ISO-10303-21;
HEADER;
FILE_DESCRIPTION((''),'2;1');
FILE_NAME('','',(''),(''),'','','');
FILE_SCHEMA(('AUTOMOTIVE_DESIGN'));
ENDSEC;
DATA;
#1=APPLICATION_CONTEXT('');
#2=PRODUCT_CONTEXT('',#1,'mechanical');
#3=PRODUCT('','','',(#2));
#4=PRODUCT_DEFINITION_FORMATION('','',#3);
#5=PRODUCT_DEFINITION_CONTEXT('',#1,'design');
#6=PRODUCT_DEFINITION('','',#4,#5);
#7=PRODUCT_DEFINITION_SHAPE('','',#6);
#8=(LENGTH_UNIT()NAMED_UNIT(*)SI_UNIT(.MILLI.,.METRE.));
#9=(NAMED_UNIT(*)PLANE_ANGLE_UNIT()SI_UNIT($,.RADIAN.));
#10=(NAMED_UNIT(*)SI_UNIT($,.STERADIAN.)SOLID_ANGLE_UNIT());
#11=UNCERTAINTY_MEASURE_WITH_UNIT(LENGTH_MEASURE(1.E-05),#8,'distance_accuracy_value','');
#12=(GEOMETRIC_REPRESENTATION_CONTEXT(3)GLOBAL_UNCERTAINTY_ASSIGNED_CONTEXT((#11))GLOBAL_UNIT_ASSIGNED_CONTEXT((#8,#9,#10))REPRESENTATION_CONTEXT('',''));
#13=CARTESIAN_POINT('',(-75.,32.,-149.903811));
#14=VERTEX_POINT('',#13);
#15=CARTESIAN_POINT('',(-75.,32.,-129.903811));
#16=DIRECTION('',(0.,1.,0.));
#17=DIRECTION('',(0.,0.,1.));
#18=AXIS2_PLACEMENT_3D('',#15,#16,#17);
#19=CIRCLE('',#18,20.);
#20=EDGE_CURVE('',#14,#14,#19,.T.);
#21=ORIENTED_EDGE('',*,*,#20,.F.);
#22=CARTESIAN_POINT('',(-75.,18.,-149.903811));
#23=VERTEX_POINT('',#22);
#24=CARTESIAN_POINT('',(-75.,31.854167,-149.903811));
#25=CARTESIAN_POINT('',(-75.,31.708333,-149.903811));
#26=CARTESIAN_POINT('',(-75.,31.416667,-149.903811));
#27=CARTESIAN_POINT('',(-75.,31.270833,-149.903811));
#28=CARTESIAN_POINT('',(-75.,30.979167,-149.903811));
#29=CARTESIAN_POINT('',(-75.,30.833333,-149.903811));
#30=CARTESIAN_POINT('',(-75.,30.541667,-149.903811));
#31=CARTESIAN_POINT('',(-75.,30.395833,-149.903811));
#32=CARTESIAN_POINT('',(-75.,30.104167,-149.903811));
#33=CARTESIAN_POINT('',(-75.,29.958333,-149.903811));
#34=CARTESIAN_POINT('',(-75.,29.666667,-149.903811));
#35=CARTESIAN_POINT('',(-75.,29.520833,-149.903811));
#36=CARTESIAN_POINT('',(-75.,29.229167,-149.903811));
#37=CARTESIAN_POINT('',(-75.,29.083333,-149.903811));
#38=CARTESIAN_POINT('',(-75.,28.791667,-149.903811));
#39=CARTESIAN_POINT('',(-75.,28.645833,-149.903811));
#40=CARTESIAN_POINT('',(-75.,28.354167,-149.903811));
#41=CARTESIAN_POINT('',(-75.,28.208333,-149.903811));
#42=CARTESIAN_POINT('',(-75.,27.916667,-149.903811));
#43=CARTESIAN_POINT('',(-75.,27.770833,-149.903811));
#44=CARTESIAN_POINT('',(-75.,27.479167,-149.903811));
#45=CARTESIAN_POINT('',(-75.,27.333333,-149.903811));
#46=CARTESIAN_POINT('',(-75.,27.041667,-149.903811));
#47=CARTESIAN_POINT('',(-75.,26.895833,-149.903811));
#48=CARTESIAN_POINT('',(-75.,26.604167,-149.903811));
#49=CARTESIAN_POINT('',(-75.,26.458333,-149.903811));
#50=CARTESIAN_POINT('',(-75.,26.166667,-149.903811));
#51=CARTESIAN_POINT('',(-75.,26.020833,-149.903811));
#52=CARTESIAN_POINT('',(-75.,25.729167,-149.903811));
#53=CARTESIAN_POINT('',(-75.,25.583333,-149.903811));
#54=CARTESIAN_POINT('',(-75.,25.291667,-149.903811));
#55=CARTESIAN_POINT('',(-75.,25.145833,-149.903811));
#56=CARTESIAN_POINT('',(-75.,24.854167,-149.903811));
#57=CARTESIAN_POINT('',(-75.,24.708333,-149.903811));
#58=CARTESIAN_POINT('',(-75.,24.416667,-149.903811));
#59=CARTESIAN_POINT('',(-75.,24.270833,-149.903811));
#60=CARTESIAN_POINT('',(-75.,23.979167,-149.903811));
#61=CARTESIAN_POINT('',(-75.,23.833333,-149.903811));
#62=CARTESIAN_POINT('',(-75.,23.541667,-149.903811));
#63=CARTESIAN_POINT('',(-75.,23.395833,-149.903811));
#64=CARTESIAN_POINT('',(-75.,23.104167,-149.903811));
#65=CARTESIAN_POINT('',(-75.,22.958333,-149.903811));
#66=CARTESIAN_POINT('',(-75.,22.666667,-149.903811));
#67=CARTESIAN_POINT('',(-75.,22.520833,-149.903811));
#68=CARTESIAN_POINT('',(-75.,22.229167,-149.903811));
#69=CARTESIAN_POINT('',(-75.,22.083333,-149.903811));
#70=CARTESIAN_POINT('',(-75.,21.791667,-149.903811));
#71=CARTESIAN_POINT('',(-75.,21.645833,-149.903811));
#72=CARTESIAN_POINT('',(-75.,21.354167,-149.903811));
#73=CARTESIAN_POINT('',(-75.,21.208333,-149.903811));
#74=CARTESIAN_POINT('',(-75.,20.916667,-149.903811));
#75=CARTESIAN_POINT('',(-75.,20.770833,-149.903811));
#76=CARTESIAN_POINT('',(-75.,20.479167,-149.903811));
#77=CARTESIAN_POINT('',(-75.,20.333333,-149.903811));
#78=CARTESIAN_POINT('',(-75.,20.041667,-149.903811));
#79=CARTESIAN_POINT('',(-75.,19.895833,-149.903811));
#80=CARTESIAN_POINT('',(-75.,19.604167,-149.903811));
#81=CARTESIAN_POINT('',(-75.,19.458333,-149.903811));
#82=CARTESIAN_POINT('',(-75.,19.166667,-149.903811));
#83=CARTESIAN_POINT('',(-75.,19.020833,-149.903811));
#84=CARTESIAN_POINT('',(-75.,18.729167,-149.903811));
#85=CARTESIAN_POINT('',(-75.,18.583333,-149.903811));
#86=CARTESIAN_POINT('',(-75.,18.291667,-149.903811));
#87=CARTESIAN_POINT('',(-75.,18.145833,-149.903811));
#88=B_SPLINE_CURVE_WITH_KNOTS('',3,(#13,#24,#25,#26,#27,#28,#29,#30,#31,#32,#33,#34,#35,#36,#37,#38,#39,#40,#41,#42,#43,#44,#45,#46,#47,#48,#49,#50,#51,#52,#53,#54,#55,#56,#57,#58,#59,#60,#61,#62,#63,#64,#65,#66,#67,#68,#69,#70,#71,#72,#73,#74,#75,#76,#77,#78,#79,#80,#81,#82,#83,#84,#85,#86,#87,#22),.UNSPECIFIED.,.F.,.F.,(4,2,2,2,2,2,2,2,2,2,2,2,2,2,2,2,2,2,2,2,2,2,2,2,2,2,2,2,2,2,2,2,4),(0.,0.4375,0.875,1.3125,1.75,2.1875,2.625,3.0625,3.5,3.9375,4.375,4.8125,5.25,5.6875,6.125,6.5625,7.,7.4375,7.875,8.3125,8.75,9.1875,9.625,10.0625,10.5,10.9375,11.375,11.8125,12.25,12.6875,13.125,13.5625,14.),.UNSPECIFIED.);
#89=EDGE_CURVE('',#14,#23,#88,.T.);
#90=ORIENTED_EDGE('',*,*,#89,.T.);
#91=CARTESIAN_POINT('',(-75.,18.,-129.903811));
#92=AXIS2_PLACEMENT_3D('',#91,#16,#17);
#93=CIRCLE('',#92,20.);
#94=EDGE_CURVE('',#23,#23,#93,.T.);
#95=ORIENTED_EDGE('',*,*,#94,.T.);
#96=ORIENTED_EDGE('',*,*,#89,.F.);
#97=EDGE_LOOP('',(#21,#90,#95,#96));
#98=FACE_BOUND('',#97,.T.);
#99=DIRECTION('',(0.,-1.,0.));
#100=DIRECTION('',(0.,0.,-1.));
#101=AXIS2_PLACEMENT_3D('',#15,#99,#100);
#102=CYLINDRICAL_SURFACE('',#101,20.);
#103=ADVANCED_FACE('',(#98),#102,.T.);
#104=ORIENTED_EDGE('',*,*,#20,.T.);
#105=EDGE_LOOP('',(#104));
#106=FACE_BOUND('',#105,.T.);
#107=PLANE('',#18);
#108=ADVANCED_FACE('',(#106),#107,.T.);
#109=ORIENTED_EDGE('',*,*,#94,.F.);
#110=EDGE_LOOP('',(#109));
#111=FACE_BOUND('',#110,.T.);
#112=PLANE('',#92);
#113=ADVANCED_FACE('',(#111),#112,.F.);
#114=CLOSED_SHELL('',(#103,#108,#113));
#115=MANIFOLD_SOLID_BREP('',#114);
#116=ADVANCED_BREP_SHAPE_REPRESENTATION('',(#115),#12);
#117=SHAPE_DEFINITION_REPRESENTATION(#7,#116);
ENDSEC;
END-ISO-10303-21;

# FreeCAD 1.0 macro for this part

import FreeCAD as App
import Part
import Sketcher

doc = App.newDocument("Part")
body = doc.addObject("PartDesign::Body", "Body")

sketch1 = doc.addObject("Sketcher::SketchObject", "Sketch")
body.addObject(sketch1)
sketch1.AttachmentSupport = (doc.XZ_Plane, [""])
sketch1.MapMode = "FlatFace"
sketch1.AttachmentOffset = App.Placement(App.Vector(0, 0, -18), App.Rotation())
sketch1.addGeometry(Part.Circle(App.Vector(-75, -129.903811, 0), App.Vector(0, 0, 1), 20), False)
sketch1.addConstraint([
    Sketcher.Constraint("Diameter", 0, 40.0),
    Sketcher.Constraint("DistanceX", 0, 3, -1, 1, 75.0),
    Sketcher.Constraint("DistanceY", 0, 3, -1, 1, 129.903811),
])
pad1 = doc.addObject("PartDesign::Pad", "Pad")
body.addObject(pad1)
pad1.Profile = sketch1
pad1.Length = 14
pad1.Reversed = True

doc.recompute()
